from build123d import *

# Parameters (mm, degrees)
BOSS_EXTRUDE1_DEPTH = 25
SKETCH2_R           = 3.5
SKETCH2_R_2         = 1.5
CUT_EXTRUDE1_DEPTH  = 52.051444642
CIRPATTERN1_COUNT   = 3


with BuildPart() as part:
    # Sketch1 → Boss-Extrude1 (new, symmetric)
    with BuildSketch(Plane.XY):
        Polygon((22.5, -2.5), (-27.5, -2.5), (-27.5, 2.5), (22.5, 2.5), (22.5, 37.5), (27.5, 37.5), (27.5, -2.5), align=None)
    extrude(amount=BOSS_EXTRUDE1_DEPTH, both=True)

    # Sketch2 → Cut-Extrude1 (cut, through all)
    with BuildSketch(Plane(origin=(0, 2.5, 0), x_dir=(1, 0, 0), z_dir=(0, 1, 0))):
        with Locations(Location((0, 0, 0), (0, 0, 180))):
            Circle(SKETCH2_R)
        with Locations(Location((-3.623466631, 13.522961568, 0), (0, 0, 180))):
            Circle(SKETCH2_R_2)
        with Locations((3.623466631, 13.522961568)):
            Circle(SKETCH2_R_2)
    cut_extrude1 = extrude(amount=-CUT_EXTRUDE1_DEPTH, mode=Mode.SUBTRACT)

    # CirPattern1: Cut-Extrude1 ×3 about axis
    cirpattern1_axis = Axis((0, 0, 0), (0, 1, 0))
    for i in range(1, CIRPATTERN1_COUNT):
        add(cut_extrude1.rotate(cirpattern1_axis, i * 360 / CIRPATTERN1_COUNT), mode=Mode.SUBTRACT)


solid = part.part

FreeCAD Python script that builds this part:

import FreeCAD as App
import Part
import Sketcher

V = App.Vector


def add_polygon(sketch, points):
    """Adds a closed chain of lines whose ends are joined by coincident constraints."""
    first, n = sketch.GeometryCount, len(points)
    for a, b in zip(points, points[1:] + points[:1]):
        sketch.addGeometry(Part.LineSegment(App.Vector(*a, 0), App.Vector(*b, 0)), False)
    for i in range(n):
        sketch.addConstraint(Sketcher.Constraint("Coincident", first + i, 2, first + (i + 1) % n, 1))

doc = App.newDocument("Part")
params = doc.addObject("Spreadsheet::Sheet", "Params")
for row, (alias, value) in enumerate([
    ("sketch1_width", "55 mm"),
    ("sketch1_width2", "5 mm"),
    ("sketch1_height", "40 mm"),
    ("pad1_length", "50 mm"),
    ("sketch2_diameter", "7 mm"),
    ("sketch2_diameter2", "3 mm"),
], start=1):
    params.set(f"A{row}", alias)
    params.set(f"B{row}", "=" + value)
    params.setAlias(f"B{row}", alias)

body = doc.addObject("PartDesign::Body", "Body")

# Sketch on XY plane
sketch1 = doc.addObject("Sketcher::SketchObject", "Sketch")
body.addObject(sketch1)
sketch1.AttachmentSupport = (doc.XY_Plane, [""])
sketch1.MapMode = "FlatFace"
add_polygon(sketch1, [(-28, -2), (28, -2), (28, 38), (22, 38), (22, 2), (-28, 2)])  # lines 0-5
sketch1.addConstraint(Sketcher.Constraint("Horizontal", 0))
sketch1.addConstraint(Sketcher.Constraint("Vertical", 1))
sketch1.addConstraint(Sketcher.Constraint("Horizontal", 2))
sketch1.addConstraint(Sketcher.Constraint("Vertical", 3))
sketch1.addConstraint(Sketcher.Constraint("Horizontal", 4))
sketch1.addConstraint(Sketcher.Constraint("Vertical", 5))
sketch1.addConstraint(Sketcher.Constraint("Symmetric", 0, 2, 4, 2, -1, 1))
sketch1.addConstraint(Sketcher.Constraint("Equal", 2, 5))
sketch1.addConstraint(Sketcher.Constraint("DistanceX", 0, 1, 0, 2, 55.0))
sketch1.addConstraint(Sketcher.Constraint("DistanceX", 2, 2, 2, 1, 5.0))
sketch1.addConstraint(Sketcher.Constraint("DistanceY", 1, 1, 1, 2, 40.0))
sketch1.setExpression("Constraints[14]", "Params.sketch1_width")
sketch1.setExpression("Constraints[15]", "Params.sketch1_width2")
sketch1.setExpression("Constraints[16]", "Params.sketch1_height")
pad1 = doc.addObject("PartDesign::Pad", "Pad")
body.addObject(pad1)
pad1.Profile = sketch1
pad1.setExpression("Length", "Params.pad1_length")
pad1.Midplane = True

# Sketch on XZ plane
sketch2 = doc.addObject("Sketcher::SketchObject", "Sketch001")
body.addObject(sketch2)
sketch2.AttachmentSupport = (doc.XZ_Plane, [""])
sketch2.MapMode = "FlatFace"
sketch2.AttachmentOffset = App.Placement(V(0, 0, -2.5), App.Rotation())
sketch2.addGeometry(Part.Circle(V(0, 0, 0), V(0, 0, 1), 3.5), False)
sketch2.addGeometry(Part.Circle(V(-3.6, -13.5, 0), V(0, 0, 1), 1.5), False)
sketch2.addGeometry(Part.Circle(V(3.6, -13.5, 0), V(0, 0, 1), 1.5), False)
sketch2.addConstraint(Sketcher.Constraint("Coincident", 0, 3, -1, 1))
sketch2.addConstraint(Sketcher.Constraint("Equal", 1, 2))
sketch2.addConstraint(Sketcher.Constraint("Symmetric", 1, 3, 2, 3, -2))
sketch2.addConstraint(Sketcher.Constraint("Diameter", 0, 7.0))
sketch2.addConstraint(Sketcher.Constraint("Diameter", 1, 3.0))
sketch2.addConstraint(Sketcher.Constraint("DistanceY", 1, 3, -1, 1, 13.522962))
sketch2.addConstraint(Sketcher.Constraint("DistanceX", 1, 3, -1, 1, 3.623467))
sketch2.setExpression("Constraints[3]", "Params.sketch2_diameter")
sketch2.setExpression("Constraints[4]", "Params.sketch2_diameter2")
pocket1 = doc.addObject("PartDesign::Pocket", "Pocket")
body.addObject(pocket1)
pocket1.Profile = sketch2
pocket1.Type = "ThroughAll"
pocket1.Reversed = True
doc.recompute()

polarpattern = doc.addObject("PartDesign::PolarPattern", "PolarPattern")
body.addObject(polarpattern)
polarpattern.Originals = [pocket1]
polarpattern.Axis = (doc.Y_Axis, [""])
polarpattern.Angle = 360
polarpattern.Occurrences = 3
body.Tip = polarpattern

doc.recompute()
